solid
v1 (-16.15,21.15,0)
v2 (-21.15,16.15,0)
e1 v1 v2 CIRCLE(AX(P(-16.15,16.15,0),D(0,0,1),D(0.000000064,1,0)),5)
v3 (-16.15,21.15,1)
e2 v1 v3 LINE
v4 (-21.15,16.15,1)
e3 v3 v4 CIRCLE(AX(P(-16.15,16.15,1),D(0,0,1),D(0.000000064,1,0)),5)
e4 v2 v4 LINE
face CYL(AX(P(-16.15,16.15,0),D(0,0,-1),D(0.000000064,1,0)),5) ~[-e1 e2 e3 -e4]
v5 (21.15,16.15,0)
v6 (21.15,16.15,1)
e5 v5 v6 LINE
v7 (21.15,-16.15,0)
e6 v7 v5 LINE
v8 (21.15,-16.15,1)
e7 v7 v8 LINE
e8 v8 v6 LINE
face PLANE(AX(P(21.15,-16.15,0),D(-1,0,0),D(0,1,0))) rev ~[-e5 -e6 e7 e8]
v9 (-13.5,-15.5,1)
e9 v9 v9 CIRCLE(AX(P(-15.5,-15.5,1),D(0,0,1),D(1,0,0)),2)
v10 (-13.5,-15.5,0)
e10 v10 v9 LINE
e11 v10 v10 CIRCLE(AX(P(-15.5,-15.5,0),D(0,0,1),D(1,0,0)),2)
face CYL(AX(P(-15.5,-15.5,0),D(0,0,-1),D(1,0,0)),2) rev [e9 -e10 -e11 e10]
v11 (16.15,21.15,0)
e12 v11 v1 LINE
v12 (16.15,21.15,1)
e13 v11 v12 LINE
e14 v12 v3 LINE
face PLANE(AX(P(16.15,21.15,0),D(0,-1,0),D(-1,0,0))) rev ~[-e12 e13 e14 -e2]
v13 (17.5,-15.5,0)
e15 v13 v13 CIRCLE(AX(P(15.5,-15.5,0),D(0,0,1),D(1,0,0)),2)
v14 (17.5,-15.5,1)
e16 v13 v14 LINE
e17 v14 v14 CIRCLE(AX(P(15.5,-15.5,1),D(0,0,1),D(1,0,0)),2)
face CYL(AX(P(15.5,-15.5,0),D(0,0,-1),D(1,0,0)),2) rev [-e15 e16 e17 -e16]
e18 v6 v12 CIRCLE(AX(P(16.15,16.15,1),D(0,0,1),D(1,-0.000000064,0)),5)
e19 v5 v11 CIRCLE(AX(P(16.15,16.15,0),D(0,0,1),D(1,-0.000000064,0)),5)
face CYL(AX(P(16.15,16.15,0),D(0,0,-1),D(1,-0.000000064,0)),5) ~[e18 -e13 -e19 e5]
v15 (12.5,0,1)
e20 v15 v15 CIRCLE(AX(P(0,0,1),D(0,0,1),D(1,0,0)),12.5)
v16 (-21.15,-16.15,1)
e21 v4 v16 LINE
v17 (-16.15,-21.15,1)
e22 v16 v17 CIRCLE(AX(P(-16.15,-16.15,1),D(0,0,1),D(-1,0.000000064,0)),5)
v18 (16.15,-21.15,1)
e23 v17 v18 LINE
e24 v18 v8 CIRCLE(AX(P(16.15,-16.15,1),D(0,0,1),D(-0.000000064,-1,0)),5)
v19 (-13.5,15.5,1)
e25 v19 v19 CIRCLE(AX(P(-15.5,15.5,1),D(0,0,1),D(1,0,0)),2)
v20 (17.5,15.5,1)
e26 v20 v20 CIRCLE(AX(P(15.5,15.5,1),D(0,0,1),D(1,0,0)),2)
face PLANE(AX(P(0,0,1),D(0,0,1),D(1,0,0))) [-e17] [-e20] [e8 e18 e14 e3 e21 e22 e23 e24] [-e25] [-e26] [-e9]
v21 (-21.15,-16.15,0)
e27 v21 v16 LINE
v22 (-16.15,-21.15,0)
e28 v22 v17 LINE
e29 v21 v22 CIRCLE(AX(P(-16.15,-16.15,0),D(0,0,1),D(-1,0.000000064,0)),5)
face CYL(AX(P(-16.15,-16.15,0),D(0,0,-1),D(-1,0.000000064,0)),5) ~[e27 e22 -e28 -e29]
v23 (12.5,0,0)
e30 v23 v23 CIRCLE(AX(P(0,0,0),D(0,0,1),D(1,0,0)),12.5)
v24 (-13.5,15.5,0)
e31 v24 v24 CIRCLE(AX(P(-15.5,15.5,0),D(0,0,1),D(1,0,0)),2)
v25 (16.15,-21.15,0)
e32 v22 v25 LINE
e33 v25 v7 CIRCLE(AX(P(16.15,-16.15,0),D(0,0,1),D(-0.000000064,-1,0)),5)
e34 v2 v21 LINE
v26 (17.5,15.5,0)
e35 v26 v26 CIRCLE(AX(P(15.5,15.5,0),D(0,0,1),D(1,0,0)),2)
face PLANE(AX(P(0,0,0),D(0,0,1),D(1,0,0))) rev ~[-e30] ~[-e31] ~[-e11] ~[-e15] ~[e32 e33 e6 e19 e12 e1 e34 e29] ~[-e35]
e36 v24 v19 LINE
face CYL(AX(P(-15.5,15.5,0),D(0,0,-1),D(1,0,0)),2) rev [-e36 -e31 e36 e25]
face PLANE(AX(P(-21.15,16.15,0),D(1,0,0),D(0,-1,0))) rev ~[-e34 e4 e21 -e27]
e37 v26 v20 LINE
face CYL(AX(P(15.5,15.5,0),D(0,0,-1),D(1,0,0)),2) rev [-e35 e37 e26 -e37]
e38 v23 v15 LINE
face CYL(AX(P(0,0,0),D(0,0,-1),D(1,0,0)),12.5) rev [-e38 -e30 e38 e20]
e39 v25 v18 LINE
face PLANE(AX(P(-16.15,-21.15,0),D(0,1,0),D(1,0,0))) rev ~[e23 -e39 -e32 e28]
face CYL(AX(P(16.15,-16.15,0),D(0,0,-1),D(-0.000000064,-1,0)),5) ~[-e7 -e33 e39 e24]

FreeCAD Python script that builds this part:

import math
import FreeCAD as App
import Part
import Sketcher

doc = App.newDocument("Part")
params = doc.addObject("Spreadsheet::Sheet", "Params")
for row, (alias, value) in enumerate([
    ("sketch1_diameter", "4 mm"),
    ("sketch1_diameter2", "25 mm"),
    ("sketch1_radius", "5 mm"),
    ("sketch1_width", "32.3 mm"),
    ("pad1_length", "1 mm"),
], start=1):
    params.set(f"A{row}", alias)
    params.set(f"B{row}", "=" + value)
    params.setAlias(f"B{row}", alias)

body = doc.addObject("PartDesign::Body", "Body")

sketch1 = doc.addObject("Sketcher::SketchObject", "Sketch")
body.addObject(sketch1)
sketch1.AttachmentSupport = (doc.XY_Plane, [""])
sketch1.MapMode = "FlatFace"
sketch1.addGeometry(Part.ArcOfCircle(Part.Circle(App.Vector(16.2, 16.2, 0), App.Vector(0, 0, 1), 5), math.radians(0), math.radians(90)), False)
sketch1.addGeometry(Part.LineSegment(App.Vector(16.1, 21.1, 0), App.Vector(-16.1, 21.1, 0)), False)
sketch1.addGeometry(Part.ArcOfCircle(Part.Circle(App.Vector(-16.2, 16.2, 0), App.Vector(0, 0, 1), 5), math.radians(90), math.radians(180)), False)
sketch1.addGeometry(Part.LineSegment(App.Vector(-21.1, 16.1, 0), App.Vector(-21.1, -16.1, 0)), False)
sketch1.addGeometry(Part.ArcOfCircle(Part.Circle(App.Vector(-16.2, -16.2, 0), App.Vector(0, 0, 1), 5), math.radians(180), math.radians(270)), False)
sketch1.addGeometry(Part.LineSegment(App.Vector(-16.1, -21.1, 0), App.Vector(16.1, -21.1, 0)), False)
sketch1.addGeometry(Part.ArcOfCircle(Part.Circle(App.Vector(16.2, -16.2, 0), App.Vector(0, 0, 1), 5), math.radians(-90), math.radians(0)), False)
sketch1.addGeometry(Part.LineSegment(App.Vector(21.1, -16.1, 0), App.Vector(21.1, 16.1, 0)), False)
sketch1.addGeometry(Part.Circle(App.Vector(-15.5, -15.5, 0), App.Vector(0, 0, 1), 2), False)
sketch1.addGeometry(Part.Circle(App.Vector(15.5, -15.5, 0), App.Vector(0, 0, 1), 2), False)
sketch1.addGeometry(Part.Circle(App.Vector(-15.5, 15.5, 0), App.Vector(0, 0, 1), 2), False)
sketch1.addGeometry(Part.Circle(App.Vector(0, 0, 0), App.Vector(0, 0, 1), 12.5), False)
sketch1.addGeometry(Part.Circle(App.Vector(15.5, 15.5, 0), App.Vector(0, 0, 1), 2), False)
sketch1.addConstraint(Sketcher.Constraint("Tangent", 0, 2, 1, 1))
sketch1.addConstraint(Sketcher.Constraint("Tangent", 1, 2, 2, 1))
sketch1.addConstraint(Sketcher.Constraint("Tangent", 2, 2, 3, 1))
sketch1.addConstraint(Sketcher.Constraint("Tangent", 3, 2, 4, 1))
sketch1.addConstraint(Sketcher.Constraint("Tangent", 4, 2, 5, 1))
sketch1.addConstraint(Sketcher.Constraint("Tangent", 5, 2, 6, 1))
sketch1.addConstraint(Sketcher.Constraint("Tangent", 6, 2, 7, 1))
sketch1.addConstraint(Sketcher.Constraint("Tangent", 7, 2, 0, 1))
sketch1.addConstraint(Sketcher.Constraint("Horizontal", 1))
sketch1.addConstraint(Sketcher.Constraint("Vertical", 3))
sketch1.addConstraint(Sketcher.Constraint("Horizontal", 5))
sketch1.addConstraint(Sketcher.Constraint("Vertical", 7))
sketch1.addConstraint(Sketcher.Constraint("Coincident", 11, 3, -1, 1))
sketch1.addConstraint(Sketcher.Constraint("Equal", 0, 2))
sketch1.addConstraint(Sketcher.Constraint("Equal", 2, 4))
sketch1.addConstraint(Sketcher.Constraint("Equal", 4, 6))
sketch1.addConstraint(Sketcher.Constraint("Equal", 8, 9))
sketch1.addConstraint(Sketcher.Constraint("Equal", 9, 10))
sketch1.addConstraint(Sketcher.Constraint("Equal", 10, 12))
sketch1.addConstraint(Sketcher.Constraint("Symmetric", 0, 3, 4, 3, -1, 1))
sketch1.addConstraint(Sketcher.Constraint("Symmetric", 9, 3, 10, 3, -1, 1))
sketch1.addConstraint(Sketcher.Constraint("Symmetric", 8, 3, 12, 3, -1, 1))
sketch1.addConstraint(Sketcher.Constraint("Symmetric", 8, 3, 9, 3, -2))
sketch1.addConstraint(Sketcher.Constraint("Equal", 5, 3))
sketch1.addConstraint(Sketcher.Constraint("Diameter", 8, 4.0))
sketch1.addConstraint(Sketcher.Constraint("Diameter", 11, 25.0))
sketch1.addConstraint(Sketcher.Constraint("Radius", 0, 5.0))
sketch1.addConstraint(Sketcher.Constraint("DistanceX", 1, 2, 1, 1, 32.3))
sketch1.addConstraint(Sketcher.Constraint("DistanceX", 8, 3, 9, 3, 31.0))
sketch1.addConstraint(Sketcher.Constraint("DistanceY", 8, 3, 10, 3, 31.0))
sketch1.setExpression("Constraints[24]", "Params.sketch1_diameter")
sketch1.setExpression("Constraints[25]", "Params.sketch1_diameter2")
sketch1.setExpression("Constraints[26]", "Params.sketch1_radius")
sketch1.setExpression("Constraints[27]", "Params.sketch1_width")
pad1 = doc.addObject("PartDesign::Pad", "Pad")
body.addObject(pad1)
pad1.Profile = sketch1
pad1.setExpression("Length", "Params.pad1_length")

doc.recompute()
